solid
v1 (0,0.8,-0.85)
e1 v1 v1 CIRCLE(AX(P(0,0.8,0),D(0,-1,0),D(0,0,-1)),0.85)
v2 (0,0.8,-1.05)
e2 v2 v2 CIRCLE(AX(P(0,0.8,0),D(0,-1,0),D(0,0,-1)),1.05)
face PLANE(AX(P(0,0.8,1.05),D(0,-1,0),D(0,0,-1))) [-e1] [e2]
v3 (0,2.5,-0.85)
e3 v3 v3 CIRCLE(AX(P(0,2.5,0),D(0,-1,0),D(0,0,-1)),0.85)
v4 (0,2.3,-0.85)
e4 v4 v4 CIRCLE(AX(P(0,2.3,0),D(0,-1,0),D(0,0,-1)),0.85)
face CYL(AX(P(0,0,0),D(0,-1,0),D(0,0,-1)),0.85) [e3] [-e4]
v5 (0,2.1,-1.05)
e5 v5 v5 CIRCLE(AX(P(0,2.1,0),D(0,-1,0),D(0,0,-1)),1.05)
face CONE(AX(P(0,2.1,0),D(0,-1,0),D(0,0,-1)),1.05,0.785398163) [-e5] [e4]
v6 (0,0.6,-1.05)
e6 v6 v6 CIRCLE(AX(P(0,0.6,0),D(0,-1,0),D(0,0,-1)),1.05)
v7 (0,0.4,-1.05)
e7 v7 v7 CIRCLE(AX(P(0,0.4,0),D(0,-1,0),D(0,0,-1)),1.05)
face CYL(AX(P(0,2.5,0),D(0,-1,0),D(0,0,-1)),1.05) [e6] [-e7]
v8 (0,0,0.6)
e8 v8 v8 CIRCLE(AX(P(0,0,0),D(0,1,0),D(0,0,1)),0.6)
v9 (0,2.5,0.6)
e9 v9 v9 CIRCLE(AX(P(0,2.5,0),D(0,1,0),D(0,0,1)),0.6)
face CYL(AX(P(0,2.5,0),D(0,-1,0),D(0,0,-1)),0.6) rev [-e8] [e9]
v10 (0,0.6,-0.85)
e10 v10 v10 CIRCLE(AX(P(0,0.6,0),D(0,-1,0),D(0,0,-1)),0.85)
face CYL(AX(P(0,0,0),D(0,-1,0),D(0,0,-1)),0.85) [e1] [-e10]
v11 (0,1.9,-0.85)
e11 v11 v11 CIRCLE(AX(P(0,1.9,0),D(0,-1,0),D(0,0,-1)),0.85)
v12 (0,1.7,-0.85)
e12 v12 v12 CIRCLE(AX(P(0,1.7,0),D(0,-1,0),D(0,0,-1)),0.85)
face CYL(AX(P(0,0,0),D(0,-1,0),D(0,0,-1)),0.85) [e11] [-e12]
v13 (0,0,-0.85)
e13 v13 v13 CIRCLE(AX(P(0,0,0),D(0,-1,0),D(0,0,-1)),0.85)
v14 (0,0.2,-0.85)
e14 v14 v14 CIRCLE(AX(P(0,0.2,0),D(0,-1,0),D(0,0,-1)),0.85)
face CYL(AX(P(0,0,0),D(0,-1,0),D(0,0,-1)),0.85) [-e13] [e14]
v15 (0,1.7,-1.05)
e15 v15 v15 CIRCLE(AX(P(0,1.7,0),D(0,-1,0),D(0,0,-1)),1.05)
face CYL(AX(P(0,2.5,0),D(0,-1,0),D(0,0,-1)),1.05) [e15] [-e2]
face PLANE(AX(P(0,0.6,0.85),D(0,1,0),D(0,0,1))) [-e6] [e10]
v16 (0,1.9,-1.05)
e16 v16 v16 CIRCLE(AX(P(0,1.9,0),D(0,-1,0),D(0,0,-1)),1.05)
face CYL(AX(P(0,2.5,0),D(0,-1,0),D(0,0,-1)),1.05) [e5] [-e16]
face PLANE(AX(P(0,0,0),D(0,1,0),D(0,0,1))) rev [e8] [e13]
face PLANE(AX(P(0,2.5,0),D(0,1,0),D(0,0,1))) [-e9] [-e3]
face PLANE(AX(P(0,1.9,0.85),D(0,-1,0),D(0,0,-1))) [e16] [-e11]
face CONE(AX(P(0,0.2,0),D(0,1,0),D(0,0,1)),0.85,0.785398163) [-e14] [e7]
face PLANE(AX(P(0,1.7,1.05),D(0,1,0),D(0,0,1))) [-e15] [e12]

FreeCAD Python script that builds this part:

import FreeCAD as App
import Part
import Sketcher
Q = App.Units.Quantity

doc = App.newDocument("Part")
body = doc.addObject("PartDesign::Body", "Body")

sketch1 = body.newObject("Sketcher::SketchObject", "Sketch")
sketch1.AttachmentSupport = (doc.getObject("XZ_Plane"), [""])
sketch1.MapMode = "FlatFace"
sketch1.addGeometry([
    Part.Circle(App.Vector(0, 0, 0), App.Vector(0, 0, 1), 1.1),
    Part.Circle(App.Vector(0, 0, 0), App.Vector(0, 0, 1), 0.6),
], False)
sketch1.addConstraint([
    Sketcher.Constraint("Coincident", 0, 3, -1, 1),
    Sketcher.Constraint("Coincident", 1, 3, -1, 1),
    Sketcher.Constraint("Diameter", 0, Q("2.1 mm")),
    Sketcher.Constraint("Diameter", 1, Q("1.2 mm")),
])
pad1 = body.newObject("PartDesign::Pad", "Pad")
pad1.Profile = sketch1
pad1.Length = 2.5
pad1.Reversed = True

sketch2 = body.newObject("Sketcher::SketchObject", "Sketch001")
sketch2.AttachmentSupport = (doc.getObject("YZ_Plane"), [""])
sketch2.MapMode = "FlatFace"
sketch2.addGeometry([
    Part.LineSegment(App.Vector(1.9, 1.05, 0), App.Vector(1.7, 1.05, 0)),
    Part.LineSegment(App.Vector(1.7, 1.05, 0), App.Vector(1.7, 0.85, 0)),
    Part.LineSegment(App.Vector(1.7, 0.85, 0), App.Vector(1.9, 0.85, 0)),
    Part.LineSegment(App.Vector(1.9, 0.85, 0), App.Vector(1.9, 1.05, 0)),
    Part.LineSegment(App.Vector(2.5, 0.85, 0), App.Vector(2.5, 1.05, 0)),
    Part.LineSegment(App.Vector(2.5, 1.05, 0), App.Vector(2.1, 1.05, 0)),
    Part.LineSegment(App.Vector(2.1, 1.05, 0), App.Vector(2.3, 0.85, 0)),
    Part.LineSegment(App.Vector(2.3, 0.85, 0), App.Vector(2.5, 0.85, 0)),
    Part.LineSegment(App.Vector(0.8, 1.05, 0), App.Vector(0.6, 1.05, 0)),
    Part.LineSegment(App.Vector(0.6, 1.05, 0), App.Vector(0.6, 0.85, 0)),
    Part.LineSegment(App.Vector(0.6, 0.85, 0), App.Vector(0.8, 0.85, 0)),
    Part.LineSegment(App.Vector(0.8, 0.85, 0), App.Vector(0.8, 1.05, 0)),
    Part.LineSegment(App.Vector(0.2, 0.85, 0), App.Vector(0.4, 1.05, 0)),
    Part.LineSegment(App.Vector(0.4, 1.05, 0), App.Vector(0, 1.05, 0)),
    Part.LineSegment(App.Vector(0, 1.05, 0), App.Vector(0, 0.85, 0)),
    Part.LineSegment(App.Vector(0, 0.85, 0), App.Vector(0.2, 0.85, 0)),
], False)
sketch2.addConstraint([
    Sketcher.Constraint("Coincident", 0, 2, 1, 1),
    Sketcher.Constraint("Coincident", 1, 2, 2, 1),
    Sketcher.Constraint("Coincident", 2, 2, 3, 1),
    Sketcher.Constraint("Coincident", 3, 2, 0, 1),
    Sketcher.Constraint("Coincident", 4, 2, 5, 1),
    Sketcher.Constraint("Coincident", 5, 2, 6, 1),
    Sketcher.Constraint("Coincident", 6, 2, 7, 1),
    Sketcher.Constraint("Coincident", 7, 2, 4, 1),
    Sketcher.Constraint("Coincident", 8, 2, 9, 1),
    Sketcher.Constraint("Coincident", 9, 2, 10, 1),
    Sketcher.Constraint("Coincident", 10, 2, 11, 1),
    Sketcher.Constraint("Coincident", 11, 2, 8, 1),
    Sketcher.Constraint("Coincident", 12, 2, 13, 1),
    Sketcher.Constraint("Coincident", 13, 2, 14, 1),
    Sketcher.Constraint("Coincident", 14, 2, 15, 1),
    Sketcher.Constraint("Coincident", 15, 2, 12, 1),
    Sketcher.Constraint("Horizontal", 0),
    Sketcher.Constraint("Vertical", 1),
    Sketcher.Constraint("Horizontal", 2),
    Sketcher.Constraint("Vertical", 3),
    Sketcher.Constraint("Vertical", 4),
    Sketcher.Constraint("Horizontal", 5),
    Sketcher.Constraint("Horizontal", 7),
    Sketcher.Constraint("Horizontal", 8),
    Sketcher.Constraint("Vertical", 9),
    Sketcher.Constraint("Horizontal", 10),
    Sketcher.Constraint("Vertical", 11),
    Sketcher.Constraint("Horizontal", 13),
    Sketcher.Constraint("Vertical", 14),
    Sketcher.Constraint("Horizontal", 15),
    Sketcher.Constraint("PointOnObject", 13, 2, -2),
    Sketcher.Constraint("Perpendicular", 6, 12),
    Sketcher.Constraint("Horizontal", 3, 2, 4, 2),
    Sketcher.Constraint("Horizontal", 2, 2, 6, 2),
    Sketcher.Constraint("Horizontal", 5, 2, 8, 2),
    Sketcher.Constraint("Horizontal", 7, 2, 9, 2),
    Sketcher.Constraint("Horizontal", 11, 2, 12, 2),
    Sketcher.Constraint("Horizontal", 10, 2, 14, 2),
    Sketcher.Constraint("Equal", 2, 7),
    Sketcher.Constraint("Equal", 7, 8),
    Sketcher.Constraint("Equal", 5, 13),
    Sketcher.Constraint("Equal", 10, 15),
    Sketcher.Constraint("Equal", 15, 1),
    Sketcher.Constraint("DistanceX", 0, 2, 0, 1, Q("0.2 mm")),
    Sketcher.Constraint("DistanceX", -1, 1, 0, 2, Q("1.7 mm")),
    Sketcher.Constraint("DistanceX", -1, 1, 4, 2, Q("2.5 mm")),
    Sketcher.Constraint("DistanceX", -1, 1, 8, 2, Q("0.6 mm")),
    Sketcher.Constraint("DistanceY", -1, 1, 0, 2, Q("1.05 mm")),
])
groove = body.newObject("PartDesign::Groove", "Groove")
groove.Profile = sketch2
groove.ReferenceAxis = (sketch2, ["H_Axis"])
groove.Angle = 360

doc.recompute()
